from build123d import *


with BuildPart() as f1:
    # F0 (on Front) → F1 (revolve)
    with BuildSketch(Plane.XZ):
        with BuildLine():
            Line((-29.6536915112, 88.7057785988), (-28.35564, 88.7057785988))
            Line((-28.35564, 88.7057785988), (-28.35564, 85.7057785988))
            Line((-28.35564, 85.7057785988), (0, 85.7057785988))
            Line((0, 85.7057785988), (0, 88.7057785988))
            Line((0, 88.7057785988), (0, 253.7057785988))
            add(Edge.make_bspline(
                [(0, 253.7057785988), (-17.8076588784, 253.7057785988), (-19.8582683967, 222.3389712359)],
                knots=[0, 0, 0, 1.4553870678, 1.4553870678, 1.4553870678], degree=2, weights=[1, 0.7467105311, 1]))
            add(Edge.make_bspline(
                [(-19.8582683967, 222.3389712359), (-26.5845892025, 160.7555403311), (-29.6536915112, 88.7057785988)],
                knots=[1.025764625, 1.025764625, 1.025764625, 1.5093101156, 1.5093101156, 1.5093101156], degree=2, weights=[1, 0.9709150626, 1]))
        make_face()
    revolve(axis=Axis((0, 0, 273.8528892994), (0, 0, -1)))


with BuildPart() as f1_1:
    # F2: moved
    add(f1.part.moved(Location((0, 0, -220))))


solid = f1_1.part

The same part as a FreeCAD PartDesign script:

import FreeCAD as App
import Part
import Sketcher

doc = App.newDocument("Part")
params = doc.addObject("Spreadsheet::Sheet", "Params")
for row, (alias, value) in enumerate([
    ("sketch1_height", "3 mm"),
    ("revolution_angle", "360 deg"),
], start=1):
    params.set(f"A{row}", alias)
    params.set(f"B{row}", "=" + value)
    params.setAlias(f"B{row}", alias)

body = doc.addObject("PartDesign::Body", "Body")

# Sketch on XZ plane
sketch1 = body.newObject("Sketcher::SketchObject", "Sketch")
sketch1.AttachmentSupport = (doc.getObject("XZ_Plane"), [""])
sketch1.MapMode = "FlatFace"
sketch1.addGeometry([
    Part.LineSegment(App.Vector(-29.653692, 88.705779, 0), App.Vector(-28.35564, 88.705779, 0)),  # 0
    Part.LineSegment(App.Vector(-28.35564, 88.705779, 0), App.Vector(-28.35564, 85.705779, 0)),  # 1
    Part.LineSegment(App.Vector(-28.35564, 85.705779, 0), App.Vector(0, 85.705779, 0)),  # 2
    Part.LineSegment(App.Vector(0, 85.705779, 0), App.Vector(0, 253.705779, 0)),  # 3
    Part.BSplineCurve([App.Vector(0, 253.705779, 0), App.Vector(-17.807659, 253.705779, 0), App.Vector(-19.858268, 222.338971, 0)], [3, 3], [0, 1.455387068], False, 2, [1, 0.746710531, 1], False),  # 4
    Part.BSplineCurve([App.Vector(-19.858268, 222.338971, 0), App.Vector(-26.584589, 160.75554, 0), App.Vector(-29.653692, 88.705779, 0)], [3, 3], [1.025764625, 1.509310116], False, 2, [1, 0.970915063, 1], False),  # 5
], False)
sketch1.addConstraint([
    Sketcher.Constraint("Block", 4),
    Sketcher.Constraint("Block", 5),
    Sketcher.Constraint("Coincident", 0, 2, 1, 1),
    Sketcher.Constraint("Coincident", 1, 2, 2, 1),
    Sketcher.Constraint("Coincident", 2, 2, 3, 1),
    Sketcher.Constraint("Coincident", 3, 2, 4, 1),
    Sketcher.Constraint("Coincident", 5, 2, 0, 1),
    Sketcher.Constraint("Horizontal", 0),
    Sketcher.Constraint("Vertical", 1),
    Sketcher.Constraint("Horizontal", 2),
    Sketcher.Constraint("Vertical", 3),
    Sketcher.Constraint("DistanceY", 1, 2, 1, 1, 3.0),
    Sketcher.Constraint("DistanceX", 0, 1, 0, 2, 1.298052),
])
sketch1.setExpression("Constraints[11]", "Params.sketch1_height")
revolution = body.newObject("PartDesign::Revolution", "Revolution")
revolution.Profile = sketch1
revolution.ReferenceAxis = (sketch1, ["V_Axis"])
revolution.setExpression("Angle", "Params.revolution_angle")
body2 = doc.addObject("PartDesign::Body", "Body001")
doc.recompute()

body.Placement = App.Placement(App.Vector(0, 0, -220), App.Rotation(App.Vector(0, 0, 1), 0))
boolean = body2.newObject("PartDesign::Boolean", "Boolean")
boolean.Type = "Fuse"
boolean.addObjects([body])

doc.recompute()
